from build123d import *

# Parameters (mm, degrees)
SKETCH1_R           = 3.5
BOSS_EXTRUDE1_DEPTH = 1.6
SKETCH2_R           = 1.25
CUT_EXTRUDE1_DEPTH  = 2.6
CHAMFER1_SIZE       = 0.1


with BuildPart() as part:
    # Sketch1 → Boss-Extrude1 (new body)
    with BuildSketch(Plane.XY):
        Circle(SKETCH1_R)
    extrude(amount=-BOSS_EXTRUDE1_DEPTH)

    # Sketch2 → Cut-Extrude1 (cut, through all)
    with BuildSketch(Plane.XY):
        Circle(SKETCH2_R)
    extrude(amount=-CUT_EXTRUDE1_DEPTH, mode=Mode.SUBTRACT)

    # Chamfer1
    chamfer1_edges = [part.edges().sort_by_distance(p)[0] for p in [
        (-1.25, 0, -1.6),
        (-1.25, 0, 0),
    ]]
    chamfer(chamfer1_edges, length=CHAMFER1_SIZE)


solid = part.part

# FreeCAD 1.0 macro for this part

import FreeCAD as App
import Part
import Sketcher

V = App.Vector
Q = App.Units.Quantity


def edges_at(feature, points):
    """Names of the edges that pass closest to the given points."""
    edges = feature.Shape.Edges
    near = lambda p: min(range(len(edges)), key=lambda i: edges[i].distToShape(Part.Vertex(*p))[0])
    return sorted({f"Edge{near(p) + 1}" for p in points})

doc = App.newDocument("Part")
body = doc.addObject("PartDesign::Body", "Body")

# Sketch on XY plane
sketch1 = body.newObject("Sketcher::SketchObject", "Sketch")
sketch1.AttachmentSupport = (doc.getObject("XY_Plane"), [""])
sketch1.MapMode = "FlatFace"
sketch1.addGeometry(Part.Circle(V(0, 0, 0), V(0, 0, 1), 3.5), False)
sketch1.addConstraint(Sketcher.Constraint("Coincident", 0, 3, -1, 1))
sketch1.addConstraint(Sketcher.Constraint("Diameter", 0, Q("7 mm")))
pad1 = body.newObject("PartDesign::Pad", "Pad")
pad1.Profile = sketch1
pad1.Length = 1.6
pad1.Reversed = True

# Sketch on XY plane
sketch2 = body.newObject("Sketcher::SketchObject", "Sketch001")
sketch2.AttachmentSupport = (doc.getObject("XY_Plane"), [""])
sketch2.MapMode = "FlatFace"
sketch2.addGeometry(Part.Circle(V(0, 0, 0), V(0, 0, 1), 1.2), False)
sketch2.addConstraint(Sketcher.Constraint("Coincident", 0, 3, -1, 1))
sketch2.addConstraint(Sketcher.Constraint("Diameter", 0, Q("2.5 mm")))
pocket1 = body.newObject("PartDesign::Pocket", "Pocket")
pocket1.Profile = sketch2
pocket1.Type = "ThroughAll"
doc.recompute()

chamfer = body.newObject("PartDesign::Chamfer", "Chamfer")
chamfer.Base = (pocket1, edges_at(pocket1, [(-1.25, 0, -1.6), (-1.25, 0, 0)]))
chamfer.Size = 0.1

doc.recompute()
